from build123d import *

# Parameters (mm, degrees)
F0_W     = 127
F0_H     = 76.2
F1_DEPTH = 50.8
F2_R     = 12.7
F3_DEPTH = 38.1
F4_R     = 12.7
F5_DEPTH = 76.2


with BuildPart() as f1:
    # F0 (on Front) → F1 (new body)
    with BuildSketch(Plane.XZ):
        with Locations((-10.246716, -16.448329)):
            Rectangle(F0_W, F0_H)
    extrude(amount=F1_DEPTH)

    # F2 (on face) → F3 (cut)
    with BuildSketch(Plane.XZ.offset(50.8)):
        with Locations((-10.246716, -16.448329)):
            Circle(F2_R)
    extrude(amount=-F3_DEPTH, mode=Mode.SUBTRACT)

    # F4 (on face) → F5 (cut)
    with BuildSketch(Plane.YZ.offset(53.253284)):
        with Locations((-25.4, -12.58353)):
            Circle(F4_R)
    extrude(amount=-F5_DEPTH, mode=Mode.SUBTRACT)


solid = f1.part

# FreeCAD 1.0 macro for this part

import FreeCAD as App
import Part
import Sketcher

V = App.Vector
Q = App.Units.Quantity


def add_polygon(sketch, points):
    """Adds a closed chain of lines whose ends are joined by coincident constraints."""
    first, n = sketch.GeometryCount, len(points)
    for a, b in zip(points, points[1:] + points[:1]):
        sketch.addGeometry(Part.LineSegment(App.Vector(*a, 0), App.Vector(*b, 0)), False)
    for i in range(n):
        sketch.addConstraint(Sketcher.Constraint("Coincident", first + i, 2, first + (i + 1) % n, 1))

doc = App.newDocument("Part")
params = doc.addObject("Spreadsheet::Sheet", "Params")
for row, (alias, value) in enumerate([
    ("sketch1_width", "5 in"),
    ("sketch1_height", "3 in"),
    ("pad1_length", "2 in"),
    ("sketch2_diameter", "1 in"),
    ("pocket1_length", "1.5 in"),
    ("sketch3_diameter", "1 in"),
    ("pocket2_length", "3 in"),
], start=1):
    params.set(f"A{row}", alias)
    params.set(f"B{row}", "=" + value)
    params.setAlias(f"B{row}", alias)

body = doc.addObject("PartDesign::Body", "Body")

# Sketch on XZ plane
sketch1 = doc.addObject("Sketcher::SketchObject", "Sketch")
body.addObject(sketch1)
sketch1.AttachmentSupport = (doc.XZ_Plane, [""])
sketch1.MapMode = "FlatFace"
add_polygon(sketch1, [(-74, 22), (-74, -55), (53, -55), (53, 22)])  # lines 0-3
sketch1.addConstraint([
    Sketcher.Constraint("Vertical", 0),
    Sketcher.Constraint("Horizontal", 1),
    Sketcher.Constraint("Vertical", 2),
    Sketcher.Constraint("Horizontal", 3),
    Sketcher.Constraint("DistanceX", 1, 1, 1, 2, Q("5 in")),
    Sketcher.Constraint("DistanceY", 0, 2, 0, 1, Q("3 in")),
    Sketcher.Constraint("DistanceY", 0, 2, -1, 1, 54.548329),
    Sketcher.Constraint("DistanceX", 0, 2, -1, 1, 73.746716),
])
sketch1.setExpression("Constraints[8]", "Params.sketch1_width")
sketch1.setExpression("Constraints[9]", "Params.sketch1_height")
pad1 = doc.addObject("PartDesign::Pad", "Pad")
body.addObject(pad1)
pad1.Profile = sketch1
pad1.setExpression("Length", "Params.pad1_length")

# Sketch on XZ plane
sketch2 = doc.addObject("Sketcher::SketchObject", "Sketch001")
body.addObject(sketch2)
sketch2.AttachmentSupport = (doc.XZ_Plane, [""])
sketch2.MapMode = "FlatFace"
sketch2.AttachmentOffset = App.Placement(V(0, 0, 2 * 25.4), App.Rotation())
sketch2.addGeometry(Part.Circle(V(-10, -16, 0), V(0, 0, 1), 13), False)
sketch2.addConstraint([
    Sketcher.Constraint("Diameter", 0, Q("1 in")),
    Sketcher.Constraint("DistanceY", 0, 3, -1, 1, 16.448329),
    Sketcher.Constraint("DistanceX", 0, 3, -1, 1, 10.246716),
])
sketch2.setExpression("Constraints[0]", "Params.sketch2_diameter")
pocket1 = doc.addObject("PartDesign::Pocket", "Pocket")
body.addObject(pocket1)
pocket1.Profile = sketch2
pocket1.setExpression("Length", "Params.pocket1_length")

# Sketch on YZ plane
sketch3 = doc.addObject("Sketcher::SketchObject", "Sketch002")
body.addObject(sketch3)
sketch3.AttachmentSupport = (doc.YZ_Plane, [""])
sketch3.MapMode = "FlatFace"
sketch3.AttachmentOffset = App.Placement(V(0, 0, 53.253284), App.Rotation())
sketch3.addGeometry(Part.Circle(V(-25, -13, 0), V(0, 0, 1), 13), False)
sketch3.addConstraint([
    Sketcher.Constraint("Diameter", 0, Q("1 in")),
    Sketcher.Constraint("DistanceX", 0, 3, -1, 1, Q("1 in")),
    Sketcher.Constraint("DistanceY", 0, 3, -1, 1, 12.58353),
])
sketch3.setExpression("Constraints[0]", "Params.sketch3_diameter")
pocket2 = doc.addObject("PartDesign::Pocket", "Pocket001")
body.addObject(pocket2)
pocket2.Profile = sketch3
pocket2.setExpression("Length", "Params.pocket2_length")

doc.recompute()
